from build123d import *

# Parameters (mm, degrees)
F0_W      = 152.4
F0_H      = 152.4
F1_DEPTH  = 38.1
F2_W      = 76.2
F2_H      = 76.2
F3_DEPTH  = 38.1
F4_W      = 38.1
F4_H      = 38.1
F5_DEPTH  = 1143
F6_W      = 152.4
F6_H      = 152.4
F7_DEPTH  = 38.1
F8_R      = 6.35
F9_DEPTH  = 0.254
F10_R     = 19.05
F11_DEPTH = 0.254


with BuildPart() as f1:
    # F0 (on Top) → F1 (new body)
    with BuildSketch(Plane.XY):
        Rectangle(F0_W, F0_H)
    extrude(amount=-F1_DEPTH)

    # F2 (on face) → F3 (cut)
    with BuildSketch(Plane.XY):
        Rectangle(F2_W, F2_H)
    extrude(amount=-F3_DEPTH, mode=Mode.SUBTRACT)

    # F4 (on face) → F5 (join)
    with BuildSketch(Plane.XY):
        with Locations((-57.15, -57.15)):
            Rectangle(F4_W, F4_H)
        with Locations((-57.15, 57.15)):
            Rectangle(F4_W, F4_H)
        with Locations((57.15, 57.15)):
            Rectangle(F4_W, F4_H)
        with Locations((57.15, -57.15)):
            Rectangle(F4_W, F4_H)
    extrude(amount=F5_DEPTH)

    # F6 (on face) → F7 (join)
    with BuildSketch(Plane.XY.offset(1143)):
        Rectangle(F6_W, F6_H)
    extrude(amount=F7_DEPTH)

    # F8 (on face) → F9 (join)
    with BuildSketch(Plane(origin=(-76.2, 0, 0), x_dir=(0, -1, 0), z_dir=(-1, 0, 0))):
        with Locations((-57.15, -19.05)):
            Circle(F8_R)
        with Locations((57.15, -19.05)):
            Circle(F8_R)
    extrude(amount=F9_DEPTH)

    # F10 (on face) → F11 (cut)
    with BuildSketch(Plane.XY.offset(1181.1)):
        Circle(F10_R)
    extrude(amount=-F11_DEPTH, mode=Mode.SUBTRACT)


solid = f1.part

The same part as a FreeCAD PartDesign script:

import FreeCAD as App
import Part
import Sketcher
Q = App.Units.Quantity

doc = App.newDocument("Part")
body = doc.addObject("PartDesign::Body", "Body")

sketch1 = doc.addObject("Sketcher::SketchObject", "Sketch")
body.addObject(sketch1)
sketch1.AttachmentSupport = (doc.XY_Plane, [""])
sketch1.MapMode = "FlatFace"
sketch1.addGeometry(Part.LineSegment(App.Vector(-76, 76, 0), App.Vector(-76, -76, 0)), False)
sketch1.addGeometry(Part.LineSegment(App.Vector(-76, -76, 0), App.Vector(76, -76, 0)), False)
sketch1.addGeometry(Part.LineSegment(App.Vector(76, -76, 0), App.Vector(76, 76, 0)), False)
sketch1.addGeometry(Part.LineSegment(App.Vector(76, 76, 0), App.Vector(-76, 76, 0)), False)
sketch1.addConstraint(Sketcher.Constraint("Coincident", 0, 2, 1, 1))
sketch1.addConstraint(Sketcher.Constraint("Coincident", 1, 2, 2, 1))
sketch1.addConstraint(Sketcher.Constraint("Coincident", 2, 2, 3, 1))
sketch1.addConstraint(Sketcher.Constraint("Coincident", 3, 2, 0, 1))
sketch1.addConstraint(Sketcher.Constraint("Vertical", 0))
sketch1.addConstraint(Sketcher.Constraint("Horizontal", 1))
sketch1.addConstraint(Sketcher.Constraint("Vertical", 2))
sketch1.addConstraint(Sketcher.Constraint("Horizontal", 3))
sketch1.addConstraint(Sketcher.Constraint("Symmetric", 0, 2, 2, 2, -1, 1))
sketch1.addConstraint(Sketcher.Constraint("Equal", 3, 0))
sketch1.addConstraint(Sketcher.Constraint("DistanceX", 1, 1, 1, 2, Q("6 in")))
pad1 = doc.addObject("PartDesign::Pad", "Pad")
body.addObject(pad1)
pad1.Profile = sketch1
pad1.Length = Q("1.5 in")
pad1.Reversed = True

sketch2 = doc.addObject("Sketcher::SketchObject", "Sketch001")
body.addObject(sketch2)
sketch2.AttachmentSupport = (doc.XY_Plane, [""])
sketch2.MapMode = "FlatFace"
sketch2.addGeometry(Part.LineSegment(App.Vector(-38, 38, 0), App.Vector(-38, -38, 0)), False)
sketch2.addGeometry(Part.LineSegment(App.Vector(-38, -38, 0), App.Vector(38, -38, 0)), False)
sketch2.addGeometry(Part.LineSegment(App.Vector(38, -38, 0), App.Vector(38, 38, 0)), False)
sketch2.addGeometry(Part.LineSegment(App.Vector(38, 38, 0), App.Vector(-38, 38, 0)), False)
sketch2.addConstraint(Sketcher.Constraint("Coincident", 0, 2, 1, 1))
sketch2.addConstraint(Sketcher.Constraint("Coincident", 1, 2, 2, 1))
sketch2.addConstraint(Sketcher.Constraint("Coincident", 2, 2, 3, 1))
sketch2.addConstraint(Sketcher.Constraint("Coincident", 3, 2, 0, 1))
sketch2.addConstraint(Sketcher.Constraint("Vertical", 0))
sketch2.addConstraint(Sketcher.Constraint("Horizontal", 1))
sketch2.addConstraint(Sketcher.Constraint("Vertical", 2))
sketch2.addConstraint(Sketcher.Constraint("Horizontal", 3))
sketch2.addConstraint(Sketcher.Constraint("Symmetric", 0, 2, 2, 2, -1, 1))
sketch2.addConstraint(Sketcher.Constraint("Equal", 3, 0))
sketch2.addConstraint(Sketcher.Constraint("DistanceX", 1, 1, 1, 2, Q("3 in")))
pocket1 = doc.addObject("PartDesign::Pocket", "Pocket")
body.addObject(pocket1)
pocket1.Profile = sketch2
pocket1.Length = Q("1.5 in")

sketch3 = doc.addObject("Sketcher::SketchObject", "Sketch002")
body.addObject(sketch3)
sketch3.AttachmentSupport = (doc.XY_Plane, [""])
sketch3.MapMode = "FlatFace"
sketch3.addGeometry(Part.LineSegment(App.Vector(-76, -38, 0), App.Vector(-76, -76, 0)), False)
sketch3.addGeometry(Part.LineSegment(App.Vector(-76, -76, 0), App.Vector(-38, -76, 0)), False)
sketch3.addGeometry(Part.LineSegment(App.Vector(-38, -76, 0), App.Vector(-38, -38, 0)), False)
sketch3.addGeometry(Part.LineSegment(App.Vector(-38, -38, 0), App.Vector(-76, -38, 0)), False)
sketch3.addGeometry(Part.LineSegment(App.Vector(-76, 76, 0), App.Vector(-76, 38, 0)), False)
sketch3.addGeometry(Part.LineSegment(App.Vector(-76, 38, 0), App.Vector(-38, 38, 0)), False)
sketch3.addGeometry(Part.LineSegment(App.Vector(-38, 38, 0), App.Vector(-38, 76, 0)), False)
sketch3.addGeometry(Part.LineSegment(App.Vector(-38, 76, 0), App.Vector(-76, 76, 0)), False)
sketch3.addGeometry(Part.LineSegment(App.Vector(38, 76, 0), App.Vector(38, 38, 0)), False)
sketch3.addGeometry(Part.LineSegment(App.Vector(38, 38, 0), App.Vector(76, 38, 0)), False)
sketch3.addGeometry(Part.LineSegment(App.Vector(76, 38, 0), App.Vector(76, 76, 0)), False)
sketch3.addGeometry(Part.LineSegment(App.Vector(76, 76, 0), App.Vector(38, 76, 0)), False)
sketch3.addGeometry(Part.LineSegment(App.Vector(38, -38, 0), App.Vector(38, -76, 0)), False)
sketch3.addGeometry(Part.LineSegment(App.Vector(38, -76, 0), App.Vector(76, -76, 0)), False)
sketch3.addGeometry(Part.LineSegment(App.Vector(76, -76, 0), App.Vector(76, -38, 0)), False)
sketch3.addGeometry(Part.LineSegment(App.Vector(76, -38, 0), App.Vector(38, -38, 0)), False)
sketch3.addConstraint(Sketcher.Constraint("Coincident", 0, 2, 1, 1))
sketch3.addConstraint(Sketcher.Constraint("Coincident", 1, 2, 2, 1))
sketch3.addConstraint(Sketcher.Constraint("Coincident", 2, 2, 3, 1))
sketch3.addConstraint(Sketcher.Constraint("Coincident", 3, 2, 0, 1))
sketch3.addConstraint(Sketcher.Constraint("Coincident", 4, 2, 5, 1))
sketch3.addConstraint(Sketcher.Constraint("Coincident", 5, 2, 6, 1))
sketch3.addConstraint(Sketcher.Constraint("Coincident", 6, 2, 7, 1))
sketch3.addConstraint(Sketcher.Constraint("Coincident", 7, 2, 4, 1))
sketch3.addConstraint(Sketcher.Constraint("Coincident", 8, 2, 9, 1))
sketch3.addConstraint(Sketcher.Constraint("Coincident", 9, 2, 10, 1))
sketch3.addConstraint(Sketcher.Constraint("Coincident", 10, 2, 11, 1))
sketch3.addConstraint(Sketcher.Constraint("Coincident", 11, 2, 8, 1))
sketch3.addConstraint(Sketcher.Constraint("Coincident", 12, 2, 13, 1))
sketch3.addConstraint(Sketcher.Constraint("Coincident", 13, 2, 14, 1))
sketch3.addConstraint(Sketcher.Constraint("Coincident", 14, 2, 15, 1))
sketch3.addConstraint(Sketcher.Constraint("Coincident", 15, 2, 12, 1))
sketch3.addConstraint(Sketcher.Constraint("Vertical", 0))
sketch3.addConstraint(Sketcher.Constraint("Horizontal", 1))
sketch3.addConstraint(Sketcher.Constraint("Vertical", 2))
sketch3.addConstraint(Sketcher.Constraint("Horizontal", 3))
sketch3.addConstraint(Sketcher.Constraint("Vertical", 4))
sketch3.addConstraint(Sketcher.Constraint("Horizontal", 5))
sketch3.addConstraint(Sketcher.Constraint("Vertical", 6))
sketch3.addConstraint(Sketcher.Constraint("Horizontal", 7))
sketch3.addConstraint(Sketcher.Constraint("Vertical", 8))
sketch3.addConstraint(Sketcher.Constraint("Horizontal", 9))
sketch3.addConstraint(Sketcher.Constraint("Vertical", 10))
sketch3.addConstraint(Sketcher.Constraint("Horizontal", 11))
sketch3.addConstraint(Sketcher.Constraint("Vertical", 12))
sketch3.addConstraint(Sketcher.Constraint("Horizontal", 13))
sketch3.addConstraint(Sketcher.Constraint("Vertical", 14))
sketch3.addConstraint(Sketcher.Constraint("Horizontal", 15))
sketch3.addConstraint(Sketcher.Constraint("Symmetric", 2, 2, 8, 2, -1, 1))
sketch3.addConstraint(Sketcher.Constraint("Symmetric", 0, 2, 10, 2, -1, 1))
sketch3.addConstraint(Sketcher.Constraint("Symmetric", 6, 2, 12, 2, -1, 1))
sketch3.addConstraint(Sketcher.Constraint("Symmetric", 4, 2, 14, 2, -1, 1))
sketch3.addConstraint(Sketcher.Constraint("Symmetric", 5, 2, 8, 2, -2))
sketch3.addConstraint(Sketcher.Constraint("Symmetric", 7, 2, 10, 2, -2))
sketch3.addConstraint(Sketcher.Constraint("Equal", 15, 0))
sketch3.addConstraint(Sketcher.Constraint("DistanceX", 1, 1, 1, 2, Q("1.5 in")))
sketch3.addConstraint(Sketcher.Constraint("DistanceX", 0, 2, -1, 1, Q("3 in")))
sketch3.addConstraint(Sketcher.Constraint("DistanceY", 0, 2, -1, 1, Q("3 in")))
pad2 = doc.addObject("PartDesign::Pad", "Pad001")
body.addObject(pad2)
pad2.Profile = sketch3
pad2.Length = Q("45 in")

sketch4 = doc.addObject("Sketcher::SketchObject", "Sketch003")
body.addObject(sketch4)
sketch4.AttachmentSupport = (doc.XY_Plane, [""])
sketch4.MapMode = "FlatFace"
sketch4.AttachmentOffset = App.Placement(App.Vector(0, 0, 45 * 25.4), App.Rotation())
sketch4.addGeometry(Part.LineSegment(App.Vector(-76, 76, 0), App.Vector(-76, -76, 0)), False)
sketch4.addGeometry(Part.LineSegment(App.Vector(-76, -76, 0), App.Vector(76, -76, 0)), False)
sketch4.addGeometry(Part.LineSegment(App.Vector(76, -76, 0), App.Vector(76, 76, 0)), False)
sketch4.addGeometry(Part.LineSegment(App.Vector(76, 76, 0), App.Vector(-76, 76, 0)), False)
sketch4.addConstraint(Sketcher.Constraint("Coincident", 0, 2, 1, 1))
sketch4.addConstraint(Sketcher.Constraint("Coincident", 1, 2, 2, 1))
sketch4.addConstraint(Sketcher.Constraint("Coincident", 2, 2, 3, 1))
sketch4.addConstraint(Sketcher.Constraint("Coincident", 3, 2, 0, 1))
sketch4.addConstraint(Sketcher.Constraint("Vertical", 0))
sketch4.addConstraint(Sketcher.Constraint("Horizontal", 1))
sketch4.addConstraint(Sketcher.Constraint("Vertical", 2))
sketch4.addConstraint(Sketcher.Constraint("Horizontal", 3))
sketch4.addConstraint(Sketcher.Constraint("Symmetric", 0, 2, 2, 2, -1, 1))
sketch4.addConstraint(Sketcher.Constraint("Equal", 3, 0))
sketch4.addConstraint(Sketcher.Constraint("DistanceX", 1, 1, 1, 2, Q("6 in")))
pad3 = doc.addObject("PartDesign::Pad", "Pad002")
body.addObject(pad3)
pad3.Profile = sketch4
pad3.Length = Q("1.5 in")

sketch5 = doc.addObject("Sketcher::SketchObject", "Sketch004")
body.addObject(sketch5)
sketch5.AttachmentSupport = (doc.YZ_Plane, [""])
sketch5.MapMode = "FlatFace"
sketch5.AttachmentOffset = App.Placement(App.Vector(0, 0, -3 * 25.4), App.Rotation())
sketch5.addGeometry(Part.Circle(App.Vector(57, -19, 0), App.Vector(0, 0, 1), 6), False)
sketch5.addGeometry(Part.Circle(App.Vector(-57, -19, 0), App.Vector(0, 0, 1), 6), False)
sketch5.addConstraint(Sketcher.Constraint("Equal", 0, 1))
sketch5.addConstraint(Sketcher.Constraint("Symmetric", 0, 3, 1, 3, -2))
sketch5.addConstraint(Sketcher.Constraint("Diameter", 0, Q("0.5 in")))
sketch5.addConstraint(Sketcher.Constraint("DistanceX", 1, 3, 0, 3, Q("4.5 in")))
sketch5.addConstraint(Sketcher.Constraint("DistanceY", 0, 3, -1, 1, Q("0.75 in")))
pad4 = doc.addObject("PartDesign::Pad", "Pad003")
body.addObject(pad4)
pad4.Profile = sketch5
pad4.Length = Q("0.01 in")
pad4.Reversed = True

sketch6 = doc.addObject("Sketcher::SketchObject", "Sketch005")
body.addObject(sketch6)
sketch6.AttachmentSupport = (doc.XY_Plane, [""])
sketch6.MapMode = "FlatFace"
sketch6.AttachmentOffset = App.Placement(App.Vector(0, 0, 46.5 * 25.4), App.Rotation())
sketch6.addGeometry(Part.Circle(App.Vector(0, 0, 0), App.Vector(0, 0, 1), 19), False)
sketch6.addConstraint(Sketcher.Constraint("Coincident", 0, 3, -1, 1))
sketch6.addConstraint(Sketcher.Constraint("Diameter", 0, Q("1.5 in")))
pocket2 = doc.addObject("PartDesign::Pocket", "Pocket001")
body.addObject(pocket2)
pocket2.Profile = sketch6
pocket2.Length = Q("0.01 in")

doc.recompute()
